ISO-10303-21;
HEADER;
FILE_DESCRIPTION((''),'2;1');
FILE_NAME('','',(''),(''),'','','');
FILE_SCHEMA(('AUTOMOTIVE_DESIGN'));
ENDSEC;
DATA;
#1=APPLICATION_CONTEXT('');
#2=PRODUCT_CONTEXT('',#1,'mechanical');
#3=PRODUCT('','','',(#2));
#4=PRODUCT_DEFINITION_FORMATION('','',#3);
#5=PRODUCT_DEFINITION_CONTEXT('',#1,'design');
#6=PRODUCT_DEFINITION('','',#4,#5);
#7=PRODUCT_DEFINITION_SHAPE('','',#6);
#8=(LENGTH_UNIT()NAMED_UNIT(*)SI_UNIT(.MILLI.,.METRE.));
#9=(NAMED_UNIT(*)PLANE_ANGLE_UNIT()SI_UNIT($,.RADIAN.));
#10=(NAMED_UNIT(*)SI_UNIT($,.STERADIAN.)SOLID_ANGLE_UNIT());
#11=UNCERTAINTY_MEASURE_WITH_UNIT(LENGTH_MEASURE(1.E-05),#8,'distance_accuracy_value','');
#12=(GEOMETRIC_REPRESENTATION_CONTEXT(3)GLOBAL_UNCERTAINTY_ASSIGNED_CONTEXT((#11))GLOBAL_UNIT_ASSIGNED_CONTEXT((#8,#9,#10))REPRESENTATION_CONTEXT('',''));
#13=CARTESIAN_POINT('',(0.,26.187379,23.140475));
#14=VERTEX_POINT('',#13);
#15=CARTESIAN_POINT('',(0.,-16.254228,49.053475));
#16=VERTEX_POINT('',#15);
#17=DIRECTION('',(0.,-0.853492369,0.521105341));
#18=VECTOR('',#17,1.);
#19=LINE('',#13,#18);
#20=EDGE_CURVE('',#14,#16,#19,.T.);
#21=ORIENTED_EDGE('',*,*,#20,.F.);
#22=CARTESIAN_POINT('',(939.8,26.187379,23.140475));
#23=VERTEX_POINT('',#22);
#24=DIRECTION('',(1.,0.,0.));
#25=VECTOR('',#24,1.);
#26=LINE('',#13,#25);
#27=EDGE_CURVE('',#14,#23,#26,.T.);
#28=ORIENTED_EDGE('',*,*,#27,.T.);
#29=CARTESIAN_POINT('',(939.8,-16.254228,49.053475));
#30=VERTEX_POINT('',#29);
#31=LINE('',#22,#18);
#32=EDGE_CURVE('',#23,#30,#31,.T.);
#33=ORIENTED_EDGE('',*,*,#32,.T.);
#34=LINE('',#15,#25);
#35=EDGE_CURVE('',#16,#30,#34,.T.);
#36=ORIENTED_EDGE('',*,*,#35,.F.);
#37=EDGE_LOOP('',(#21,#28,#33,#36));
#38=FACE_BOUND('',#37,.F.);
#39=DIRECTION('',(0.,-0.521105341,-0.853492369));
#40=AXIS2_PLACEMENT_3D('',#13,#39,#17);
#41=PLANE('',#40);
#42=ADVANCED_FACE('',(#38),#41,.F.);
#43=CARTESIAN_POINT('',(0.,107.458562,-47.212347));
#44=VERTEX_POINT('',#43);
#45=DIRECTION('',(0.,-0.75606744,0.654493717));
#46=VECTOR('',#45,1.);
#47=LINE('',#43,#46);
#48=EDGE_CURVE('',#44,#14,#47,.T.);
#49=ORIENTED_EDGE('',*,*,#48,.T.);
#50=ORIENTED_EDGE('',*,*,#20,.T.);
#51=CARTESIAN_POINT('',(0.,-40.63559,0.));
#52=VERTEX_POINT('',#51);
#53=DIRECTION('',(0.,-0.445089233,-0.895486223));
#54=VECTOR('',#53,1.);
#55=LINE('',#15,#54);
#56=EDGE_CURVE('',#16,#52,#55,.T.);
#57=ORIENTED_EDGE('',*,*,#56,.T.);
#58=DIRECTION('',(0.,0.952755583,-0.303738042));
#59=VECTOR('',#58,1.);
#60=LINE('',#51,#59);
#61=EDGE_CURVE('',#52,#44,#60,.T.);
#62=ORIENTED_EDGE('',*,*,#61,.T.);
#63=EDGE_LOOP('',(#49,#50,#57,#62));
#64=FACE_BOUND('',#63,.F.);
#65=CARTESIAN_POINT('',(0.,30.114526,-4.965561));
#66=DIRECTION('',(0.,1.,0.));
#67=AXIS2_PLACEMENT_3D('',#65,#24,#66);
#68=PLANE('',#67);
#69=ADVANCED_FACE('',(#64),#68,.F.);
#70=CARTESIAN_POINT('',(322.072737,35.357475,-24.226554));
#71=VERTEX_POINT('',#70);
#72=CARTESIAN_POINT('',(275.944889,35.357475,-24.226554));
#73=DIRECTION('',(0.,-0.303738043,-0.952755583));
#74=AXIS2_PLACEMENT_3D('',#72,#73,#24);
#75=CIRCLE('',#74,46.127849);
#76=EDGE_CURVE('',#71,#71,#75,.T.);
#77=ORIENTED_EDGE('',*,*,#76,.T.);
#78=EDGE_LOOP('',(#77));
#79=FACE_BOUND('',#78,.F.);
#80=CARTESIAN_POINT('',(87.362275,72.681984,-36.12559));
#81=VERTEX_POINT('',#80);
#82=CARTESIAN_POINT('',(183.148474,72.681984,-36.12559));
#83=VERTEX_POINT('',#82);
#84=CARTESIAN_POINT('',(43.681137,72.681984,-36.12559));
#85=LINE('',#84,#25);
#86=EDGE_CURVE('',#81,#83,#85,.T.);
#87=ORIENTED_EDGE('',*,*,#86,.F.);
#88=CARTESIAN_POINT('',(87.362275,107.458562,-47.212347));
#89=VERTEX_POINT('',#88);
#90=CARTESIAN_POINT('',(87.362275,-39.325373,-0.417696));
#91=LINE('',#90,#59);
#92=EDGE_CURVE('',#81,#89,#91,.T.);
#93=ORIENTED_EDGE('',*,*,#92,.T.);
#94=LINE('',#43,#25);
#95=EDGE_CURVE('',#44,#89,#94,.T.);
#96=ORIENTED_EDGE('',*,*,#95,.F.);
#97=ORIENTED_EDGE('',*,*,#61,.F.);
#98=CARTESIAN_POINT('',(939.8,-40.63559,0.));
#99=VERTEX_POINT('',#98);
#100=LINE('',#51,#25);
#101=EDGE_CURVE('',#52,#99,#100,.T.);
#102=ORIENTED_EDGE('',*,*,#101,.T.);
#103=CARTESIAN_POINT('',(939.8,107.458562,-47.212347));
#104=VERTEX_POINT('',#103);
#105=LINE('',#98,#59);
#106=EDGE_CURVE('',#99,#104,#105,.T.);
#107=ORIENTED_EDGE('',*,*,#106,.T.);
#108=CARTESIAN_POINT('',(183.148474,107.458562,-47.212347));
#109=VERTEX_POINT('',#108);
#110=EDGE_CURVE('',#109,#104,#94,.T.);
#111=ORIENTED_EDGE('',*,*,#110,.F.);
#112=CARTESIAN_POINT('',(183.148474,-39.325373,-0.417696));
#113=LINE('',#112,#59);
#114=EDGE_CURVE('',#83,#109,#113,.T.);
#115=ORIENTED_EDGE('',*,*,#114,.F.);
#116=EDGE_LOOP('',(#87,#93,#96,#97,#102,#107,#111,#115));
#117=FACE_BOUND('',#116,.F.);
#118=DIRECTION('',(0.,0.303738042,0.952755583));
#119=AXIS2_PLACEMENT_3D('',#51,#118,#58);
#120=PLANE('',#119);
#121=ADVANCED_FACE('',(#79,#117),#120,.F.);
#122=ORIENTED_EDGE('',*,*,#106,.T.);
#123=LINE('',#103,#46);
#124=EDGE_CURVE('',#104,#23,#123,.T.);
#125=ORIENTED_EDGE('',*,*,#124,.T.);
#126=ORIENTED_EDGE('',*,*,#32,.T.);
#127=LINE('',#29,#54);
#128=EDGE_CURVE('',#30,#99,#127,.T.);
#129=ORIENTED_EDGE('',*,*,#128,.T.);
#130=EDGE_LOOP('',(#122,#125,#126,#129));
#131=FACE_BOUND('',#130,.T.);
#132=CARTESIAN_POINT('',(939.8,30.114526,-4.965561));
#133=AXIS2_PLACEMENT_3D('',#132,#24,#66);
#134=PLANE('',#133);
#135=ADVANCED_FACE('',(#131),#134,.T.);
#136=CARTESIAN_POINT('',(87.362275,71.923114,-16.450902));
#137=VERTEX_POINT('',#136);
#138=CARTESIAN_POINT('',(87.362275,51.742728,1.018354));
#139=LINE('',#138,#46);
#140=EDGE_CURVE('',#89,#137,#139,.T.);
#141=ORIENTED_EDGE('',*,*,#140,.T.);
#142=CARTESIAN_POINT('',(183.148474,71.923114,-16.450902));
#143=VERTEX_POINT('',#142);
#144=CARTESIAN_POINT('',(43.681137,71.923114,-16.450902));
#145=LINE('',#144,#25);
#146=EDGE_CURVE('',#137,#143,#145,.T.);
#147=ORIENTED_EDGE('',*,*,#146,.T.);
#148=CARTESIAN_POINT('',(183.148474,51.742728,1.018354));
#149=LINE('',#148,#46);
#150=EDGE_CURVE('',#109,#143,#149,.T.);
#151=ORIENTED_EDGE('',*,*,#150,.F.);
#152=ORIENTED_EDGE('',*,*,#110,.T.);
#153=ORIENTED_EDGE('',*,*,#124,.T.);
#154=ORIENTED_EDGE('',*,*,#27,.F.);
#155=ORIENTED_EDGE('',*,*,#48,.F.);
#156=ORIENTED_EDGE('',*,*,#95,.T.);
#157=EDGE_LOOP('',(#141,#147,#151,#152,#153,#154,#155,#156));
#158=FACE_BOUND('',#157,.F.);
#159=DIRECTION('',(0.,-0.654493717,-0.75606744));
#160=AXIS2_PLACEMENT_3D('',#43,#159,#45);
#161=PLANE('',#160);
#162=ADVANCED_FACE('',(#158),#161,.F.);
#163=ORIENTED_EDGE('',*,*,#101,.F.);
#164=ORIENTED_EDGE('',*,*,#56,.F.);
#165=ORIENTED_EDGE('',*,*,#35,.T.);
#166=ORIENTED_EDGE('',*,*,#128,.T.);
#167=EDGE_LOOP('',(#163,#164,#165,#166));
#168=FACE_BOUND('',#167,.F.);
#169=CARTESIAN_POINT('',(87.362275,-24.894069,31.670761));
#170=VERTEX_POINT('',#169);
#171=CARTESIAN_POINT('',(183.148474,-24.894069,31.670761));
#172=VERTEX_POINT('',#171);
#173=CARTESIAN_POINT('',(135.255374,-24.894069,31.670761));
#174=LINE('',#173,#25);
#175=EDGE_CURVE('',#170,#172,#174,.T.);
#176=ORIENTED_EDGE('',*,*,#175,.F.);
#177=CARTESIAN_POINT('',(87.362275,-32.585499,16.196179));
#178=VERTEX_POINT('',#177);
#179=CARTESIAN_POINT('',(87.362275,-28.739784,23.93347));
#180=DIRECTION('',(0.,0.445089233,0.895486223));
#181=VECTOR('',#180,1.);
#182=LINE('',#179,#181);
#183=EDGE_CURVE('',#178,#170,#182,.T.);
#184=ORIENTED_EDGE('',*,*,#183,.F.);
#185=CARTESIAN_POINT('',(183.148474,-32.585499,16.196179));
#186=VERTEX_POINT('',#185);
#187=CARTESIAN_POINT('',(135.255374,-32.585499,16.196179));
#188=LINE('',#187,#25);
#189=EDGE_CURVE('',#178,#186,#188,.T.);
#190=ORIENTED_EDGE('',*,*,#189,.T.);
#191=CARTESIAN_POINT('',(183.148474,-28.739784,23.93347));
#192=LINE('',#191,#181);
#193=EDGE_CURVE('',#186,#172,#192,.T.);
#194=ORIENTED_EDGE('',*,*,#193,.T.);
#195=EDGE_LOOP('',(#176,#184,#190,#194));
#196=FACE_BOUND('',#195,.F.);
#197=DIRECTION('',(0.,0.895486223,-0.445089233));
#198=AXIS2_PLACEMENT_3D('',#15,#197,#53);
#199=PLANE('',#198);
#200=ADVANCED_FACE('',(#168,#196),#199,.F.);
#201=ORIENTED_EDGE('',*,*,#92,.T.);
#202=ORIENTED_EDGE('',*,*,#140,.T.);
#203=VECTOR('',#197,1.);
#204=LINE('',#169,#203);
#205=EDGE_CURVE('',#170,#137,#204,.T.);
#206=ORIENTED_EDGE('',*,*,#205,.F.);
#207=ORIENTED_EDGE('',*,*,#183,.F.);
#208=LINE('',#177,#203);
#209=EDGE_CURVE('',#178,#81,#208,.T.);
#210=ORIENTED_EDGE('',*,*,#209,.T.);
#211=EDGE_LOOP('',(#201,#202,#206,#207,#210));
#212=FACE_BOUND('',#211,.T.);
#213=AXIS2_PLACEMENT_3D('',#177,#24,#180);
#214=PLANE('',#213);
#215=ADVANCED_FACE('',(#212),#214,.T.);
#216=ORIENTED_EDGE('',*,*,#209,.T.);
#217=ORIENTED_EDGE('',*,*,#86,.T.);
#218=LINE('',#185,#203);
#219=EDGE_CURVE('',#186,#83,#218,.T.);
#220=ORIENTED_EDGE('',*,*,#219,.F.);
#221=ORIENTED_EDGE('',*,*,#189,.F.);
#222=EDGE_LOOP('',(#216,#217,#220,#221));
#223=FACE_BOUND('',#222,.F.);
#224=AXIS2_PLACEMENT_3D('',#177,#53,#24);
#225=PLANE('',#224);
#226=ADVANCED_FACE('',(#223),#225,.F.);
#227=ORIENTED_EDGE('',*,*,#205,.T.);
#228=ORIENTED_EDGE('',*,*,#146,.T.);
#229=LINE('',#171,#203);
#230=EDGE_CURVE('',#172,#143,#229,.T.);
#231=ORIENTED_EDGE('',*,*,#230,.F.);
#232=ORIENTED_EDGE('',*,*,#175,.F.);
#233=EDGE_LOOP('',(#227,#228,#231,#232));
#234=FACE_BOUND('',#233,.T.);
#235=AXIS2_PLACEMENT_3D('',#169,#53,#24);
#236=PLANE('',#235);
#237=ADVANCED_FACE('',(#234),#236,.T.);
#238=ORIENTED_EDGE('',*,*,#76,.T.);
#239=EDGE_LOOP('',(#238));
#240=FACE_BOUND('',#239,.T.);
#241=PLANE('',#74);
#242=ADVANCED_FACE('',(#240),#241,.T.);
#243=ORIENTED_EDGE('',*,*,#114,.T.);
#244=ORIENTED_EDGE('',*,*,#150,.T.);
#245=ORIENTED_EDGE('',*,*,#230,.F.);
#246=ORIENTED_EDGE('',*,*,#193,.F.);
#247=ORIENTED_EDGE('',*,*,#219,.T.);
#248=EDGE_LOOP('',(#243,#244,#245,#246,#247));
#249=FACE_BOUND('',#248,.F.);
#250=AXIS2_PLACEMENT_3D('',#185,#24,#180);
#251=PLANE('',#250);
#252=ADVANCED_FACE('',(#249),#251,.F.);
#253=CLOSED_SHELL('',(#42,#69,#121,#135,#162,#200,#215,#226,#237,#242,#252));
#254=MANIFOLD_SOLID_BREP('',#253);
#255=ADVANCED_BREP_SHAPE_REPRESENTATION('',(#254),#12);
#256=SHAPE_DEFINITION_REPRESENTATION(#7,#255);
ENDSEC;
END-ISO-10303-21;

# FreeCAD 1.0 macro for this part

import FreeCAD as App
import Part
import Sketcher
from FreeCAD import Vector
Q = App.Units.Quantity


def add_polygon(sketch, points):
    """Adds a closed chain of lines whose ends are joined by coincident constraints."""
    first, n = sketch.GeometryCount, len(points)
    for a, b in zip(points, points[1:] + points[:1]):
        sketch.addGeometry(Part.LineSegment(App.Vector(*a, 0), App.Vector(*b, 0)), False)
    for i in range(n):
        sketch.addConstraint(Sketcher.Constraint("Coincident", first + i, 2, first + (i + 1) % n, 1))

doc = App.newDocument("Part")
body = doc.addObject("PartDesign::Body", "Body")

# Sketch on YZ plane
sketch1 = body.newObject("Sketcher::SketchObject", "Sketch")
sketch1.AttachmentSupport = (doc.getObject("YZ_Plane"), [""])
sketch1.MapMode = "FlatFace"
add_polygon(sketch1, [(-16, 49), (-41, 0), (107, -47), (26, 23)])  # lines 0-3
sketch1.addConstraint([
    Sketcher.Constraint("PointOnObject", 0, 2, -1),
    Sketcher.Constraint("DistanceY", 2, 2, 3, 2, 25.913),
    Sketcher.Constraint("Distance", 3, 49.72699),
    Sketcher.Constraint("DistanceX", 0, 2, -1, 1, 40.63559),
    Sketcher.Constraint("DistanceX", -1, 1, 1, 2, 107.458562),
    Sketcher.Constraint("DistanceX", -1, 1, 2, 2, 26.187379),
    Sketcher.Constraint("Distance", 0, 54.778593),
    Sketcher.Constraint("Distance", 1, 155.437715),
])
pad1 = body.newObject("PartDesign::Pad", "Pad")
pad1.Profile = sketch1
pad1.Length = Q("37 in")

# Sketch on an angled plane
sketch2 = body.newObject("Sketcher::SketchObject", "Sketch001")
sketch2.Placement = App.Placement(Vector(0, -32.585499, 16.196179), App.Rotation(Vector(1, 0, 0), Vector(0, 0.445089233, 0.895486223), Vector(0, -0.895486223, 0.445089233), "ZXY"))
add_polygon(sketch2, [(87, 17), (87, 0), (183, 0), (183, 17)])  # lines 0-3
sketch2.addConstraint([
    Sketcher.Constraint("Vertical", 0),
    Sketcher.Constraint("Horizontal", 1),
    Sketcher.Constraint("Vertical", 2),
    Sketcher.Constraint("Horizontal", 3),
    Sketcher.Constraint("PointOnObject", 0, 2, -1),
    Sketcher.Constraint("DistanceX", 1, 1, 1, 2, 95.786199),
    Sketcher.Constraint("DistanceY", 0, 2, 0, 1, 17.280648),
    Sketcher.Constraint("DistanceX", -1, 1, 0, 2, 87.362275),
])
pocket1 = body.newObject("PartDesign::Pocket", "Pocket")
pocket1.Profile = sketch2
pocket1.Type = "ThroughAll"

# Sketch on an angled plane
sketch3 = body.newObject("Sketcher::SketchObject", "Sketch002")
sketch3.Placement = App.Placement(Vector(0, -3.748909, -11.759457), App.Rotation(Vector(1, 0, 0), Vector(0, -0.952755583, 0.303738043), Vector(0, -0.303738043, -0.952755583), "ZXY"))
sketch3.addGeometry(Part.Circle(Vector(276, -41, 0), Vector(0, 0, 1), 46), False)
sketch3.addConstraint([
    Sketcher.Constraint("Diameter", 0, 92.255697),
    Sketcher.Constraint("DistanceX", -1, 1, 0, 3, 275.944889),
    Sketcher.Constraint("DistanceY", 0, 3, -1, 1, 41.045558),
])
pocket2 = body.newObject("PartDesign::Pocket", "Pocket001")
pocket2.Profile = sketch3
pocket2.Type = "ThroughAll"
pocket2.Reversed = True

doc.recompute()
